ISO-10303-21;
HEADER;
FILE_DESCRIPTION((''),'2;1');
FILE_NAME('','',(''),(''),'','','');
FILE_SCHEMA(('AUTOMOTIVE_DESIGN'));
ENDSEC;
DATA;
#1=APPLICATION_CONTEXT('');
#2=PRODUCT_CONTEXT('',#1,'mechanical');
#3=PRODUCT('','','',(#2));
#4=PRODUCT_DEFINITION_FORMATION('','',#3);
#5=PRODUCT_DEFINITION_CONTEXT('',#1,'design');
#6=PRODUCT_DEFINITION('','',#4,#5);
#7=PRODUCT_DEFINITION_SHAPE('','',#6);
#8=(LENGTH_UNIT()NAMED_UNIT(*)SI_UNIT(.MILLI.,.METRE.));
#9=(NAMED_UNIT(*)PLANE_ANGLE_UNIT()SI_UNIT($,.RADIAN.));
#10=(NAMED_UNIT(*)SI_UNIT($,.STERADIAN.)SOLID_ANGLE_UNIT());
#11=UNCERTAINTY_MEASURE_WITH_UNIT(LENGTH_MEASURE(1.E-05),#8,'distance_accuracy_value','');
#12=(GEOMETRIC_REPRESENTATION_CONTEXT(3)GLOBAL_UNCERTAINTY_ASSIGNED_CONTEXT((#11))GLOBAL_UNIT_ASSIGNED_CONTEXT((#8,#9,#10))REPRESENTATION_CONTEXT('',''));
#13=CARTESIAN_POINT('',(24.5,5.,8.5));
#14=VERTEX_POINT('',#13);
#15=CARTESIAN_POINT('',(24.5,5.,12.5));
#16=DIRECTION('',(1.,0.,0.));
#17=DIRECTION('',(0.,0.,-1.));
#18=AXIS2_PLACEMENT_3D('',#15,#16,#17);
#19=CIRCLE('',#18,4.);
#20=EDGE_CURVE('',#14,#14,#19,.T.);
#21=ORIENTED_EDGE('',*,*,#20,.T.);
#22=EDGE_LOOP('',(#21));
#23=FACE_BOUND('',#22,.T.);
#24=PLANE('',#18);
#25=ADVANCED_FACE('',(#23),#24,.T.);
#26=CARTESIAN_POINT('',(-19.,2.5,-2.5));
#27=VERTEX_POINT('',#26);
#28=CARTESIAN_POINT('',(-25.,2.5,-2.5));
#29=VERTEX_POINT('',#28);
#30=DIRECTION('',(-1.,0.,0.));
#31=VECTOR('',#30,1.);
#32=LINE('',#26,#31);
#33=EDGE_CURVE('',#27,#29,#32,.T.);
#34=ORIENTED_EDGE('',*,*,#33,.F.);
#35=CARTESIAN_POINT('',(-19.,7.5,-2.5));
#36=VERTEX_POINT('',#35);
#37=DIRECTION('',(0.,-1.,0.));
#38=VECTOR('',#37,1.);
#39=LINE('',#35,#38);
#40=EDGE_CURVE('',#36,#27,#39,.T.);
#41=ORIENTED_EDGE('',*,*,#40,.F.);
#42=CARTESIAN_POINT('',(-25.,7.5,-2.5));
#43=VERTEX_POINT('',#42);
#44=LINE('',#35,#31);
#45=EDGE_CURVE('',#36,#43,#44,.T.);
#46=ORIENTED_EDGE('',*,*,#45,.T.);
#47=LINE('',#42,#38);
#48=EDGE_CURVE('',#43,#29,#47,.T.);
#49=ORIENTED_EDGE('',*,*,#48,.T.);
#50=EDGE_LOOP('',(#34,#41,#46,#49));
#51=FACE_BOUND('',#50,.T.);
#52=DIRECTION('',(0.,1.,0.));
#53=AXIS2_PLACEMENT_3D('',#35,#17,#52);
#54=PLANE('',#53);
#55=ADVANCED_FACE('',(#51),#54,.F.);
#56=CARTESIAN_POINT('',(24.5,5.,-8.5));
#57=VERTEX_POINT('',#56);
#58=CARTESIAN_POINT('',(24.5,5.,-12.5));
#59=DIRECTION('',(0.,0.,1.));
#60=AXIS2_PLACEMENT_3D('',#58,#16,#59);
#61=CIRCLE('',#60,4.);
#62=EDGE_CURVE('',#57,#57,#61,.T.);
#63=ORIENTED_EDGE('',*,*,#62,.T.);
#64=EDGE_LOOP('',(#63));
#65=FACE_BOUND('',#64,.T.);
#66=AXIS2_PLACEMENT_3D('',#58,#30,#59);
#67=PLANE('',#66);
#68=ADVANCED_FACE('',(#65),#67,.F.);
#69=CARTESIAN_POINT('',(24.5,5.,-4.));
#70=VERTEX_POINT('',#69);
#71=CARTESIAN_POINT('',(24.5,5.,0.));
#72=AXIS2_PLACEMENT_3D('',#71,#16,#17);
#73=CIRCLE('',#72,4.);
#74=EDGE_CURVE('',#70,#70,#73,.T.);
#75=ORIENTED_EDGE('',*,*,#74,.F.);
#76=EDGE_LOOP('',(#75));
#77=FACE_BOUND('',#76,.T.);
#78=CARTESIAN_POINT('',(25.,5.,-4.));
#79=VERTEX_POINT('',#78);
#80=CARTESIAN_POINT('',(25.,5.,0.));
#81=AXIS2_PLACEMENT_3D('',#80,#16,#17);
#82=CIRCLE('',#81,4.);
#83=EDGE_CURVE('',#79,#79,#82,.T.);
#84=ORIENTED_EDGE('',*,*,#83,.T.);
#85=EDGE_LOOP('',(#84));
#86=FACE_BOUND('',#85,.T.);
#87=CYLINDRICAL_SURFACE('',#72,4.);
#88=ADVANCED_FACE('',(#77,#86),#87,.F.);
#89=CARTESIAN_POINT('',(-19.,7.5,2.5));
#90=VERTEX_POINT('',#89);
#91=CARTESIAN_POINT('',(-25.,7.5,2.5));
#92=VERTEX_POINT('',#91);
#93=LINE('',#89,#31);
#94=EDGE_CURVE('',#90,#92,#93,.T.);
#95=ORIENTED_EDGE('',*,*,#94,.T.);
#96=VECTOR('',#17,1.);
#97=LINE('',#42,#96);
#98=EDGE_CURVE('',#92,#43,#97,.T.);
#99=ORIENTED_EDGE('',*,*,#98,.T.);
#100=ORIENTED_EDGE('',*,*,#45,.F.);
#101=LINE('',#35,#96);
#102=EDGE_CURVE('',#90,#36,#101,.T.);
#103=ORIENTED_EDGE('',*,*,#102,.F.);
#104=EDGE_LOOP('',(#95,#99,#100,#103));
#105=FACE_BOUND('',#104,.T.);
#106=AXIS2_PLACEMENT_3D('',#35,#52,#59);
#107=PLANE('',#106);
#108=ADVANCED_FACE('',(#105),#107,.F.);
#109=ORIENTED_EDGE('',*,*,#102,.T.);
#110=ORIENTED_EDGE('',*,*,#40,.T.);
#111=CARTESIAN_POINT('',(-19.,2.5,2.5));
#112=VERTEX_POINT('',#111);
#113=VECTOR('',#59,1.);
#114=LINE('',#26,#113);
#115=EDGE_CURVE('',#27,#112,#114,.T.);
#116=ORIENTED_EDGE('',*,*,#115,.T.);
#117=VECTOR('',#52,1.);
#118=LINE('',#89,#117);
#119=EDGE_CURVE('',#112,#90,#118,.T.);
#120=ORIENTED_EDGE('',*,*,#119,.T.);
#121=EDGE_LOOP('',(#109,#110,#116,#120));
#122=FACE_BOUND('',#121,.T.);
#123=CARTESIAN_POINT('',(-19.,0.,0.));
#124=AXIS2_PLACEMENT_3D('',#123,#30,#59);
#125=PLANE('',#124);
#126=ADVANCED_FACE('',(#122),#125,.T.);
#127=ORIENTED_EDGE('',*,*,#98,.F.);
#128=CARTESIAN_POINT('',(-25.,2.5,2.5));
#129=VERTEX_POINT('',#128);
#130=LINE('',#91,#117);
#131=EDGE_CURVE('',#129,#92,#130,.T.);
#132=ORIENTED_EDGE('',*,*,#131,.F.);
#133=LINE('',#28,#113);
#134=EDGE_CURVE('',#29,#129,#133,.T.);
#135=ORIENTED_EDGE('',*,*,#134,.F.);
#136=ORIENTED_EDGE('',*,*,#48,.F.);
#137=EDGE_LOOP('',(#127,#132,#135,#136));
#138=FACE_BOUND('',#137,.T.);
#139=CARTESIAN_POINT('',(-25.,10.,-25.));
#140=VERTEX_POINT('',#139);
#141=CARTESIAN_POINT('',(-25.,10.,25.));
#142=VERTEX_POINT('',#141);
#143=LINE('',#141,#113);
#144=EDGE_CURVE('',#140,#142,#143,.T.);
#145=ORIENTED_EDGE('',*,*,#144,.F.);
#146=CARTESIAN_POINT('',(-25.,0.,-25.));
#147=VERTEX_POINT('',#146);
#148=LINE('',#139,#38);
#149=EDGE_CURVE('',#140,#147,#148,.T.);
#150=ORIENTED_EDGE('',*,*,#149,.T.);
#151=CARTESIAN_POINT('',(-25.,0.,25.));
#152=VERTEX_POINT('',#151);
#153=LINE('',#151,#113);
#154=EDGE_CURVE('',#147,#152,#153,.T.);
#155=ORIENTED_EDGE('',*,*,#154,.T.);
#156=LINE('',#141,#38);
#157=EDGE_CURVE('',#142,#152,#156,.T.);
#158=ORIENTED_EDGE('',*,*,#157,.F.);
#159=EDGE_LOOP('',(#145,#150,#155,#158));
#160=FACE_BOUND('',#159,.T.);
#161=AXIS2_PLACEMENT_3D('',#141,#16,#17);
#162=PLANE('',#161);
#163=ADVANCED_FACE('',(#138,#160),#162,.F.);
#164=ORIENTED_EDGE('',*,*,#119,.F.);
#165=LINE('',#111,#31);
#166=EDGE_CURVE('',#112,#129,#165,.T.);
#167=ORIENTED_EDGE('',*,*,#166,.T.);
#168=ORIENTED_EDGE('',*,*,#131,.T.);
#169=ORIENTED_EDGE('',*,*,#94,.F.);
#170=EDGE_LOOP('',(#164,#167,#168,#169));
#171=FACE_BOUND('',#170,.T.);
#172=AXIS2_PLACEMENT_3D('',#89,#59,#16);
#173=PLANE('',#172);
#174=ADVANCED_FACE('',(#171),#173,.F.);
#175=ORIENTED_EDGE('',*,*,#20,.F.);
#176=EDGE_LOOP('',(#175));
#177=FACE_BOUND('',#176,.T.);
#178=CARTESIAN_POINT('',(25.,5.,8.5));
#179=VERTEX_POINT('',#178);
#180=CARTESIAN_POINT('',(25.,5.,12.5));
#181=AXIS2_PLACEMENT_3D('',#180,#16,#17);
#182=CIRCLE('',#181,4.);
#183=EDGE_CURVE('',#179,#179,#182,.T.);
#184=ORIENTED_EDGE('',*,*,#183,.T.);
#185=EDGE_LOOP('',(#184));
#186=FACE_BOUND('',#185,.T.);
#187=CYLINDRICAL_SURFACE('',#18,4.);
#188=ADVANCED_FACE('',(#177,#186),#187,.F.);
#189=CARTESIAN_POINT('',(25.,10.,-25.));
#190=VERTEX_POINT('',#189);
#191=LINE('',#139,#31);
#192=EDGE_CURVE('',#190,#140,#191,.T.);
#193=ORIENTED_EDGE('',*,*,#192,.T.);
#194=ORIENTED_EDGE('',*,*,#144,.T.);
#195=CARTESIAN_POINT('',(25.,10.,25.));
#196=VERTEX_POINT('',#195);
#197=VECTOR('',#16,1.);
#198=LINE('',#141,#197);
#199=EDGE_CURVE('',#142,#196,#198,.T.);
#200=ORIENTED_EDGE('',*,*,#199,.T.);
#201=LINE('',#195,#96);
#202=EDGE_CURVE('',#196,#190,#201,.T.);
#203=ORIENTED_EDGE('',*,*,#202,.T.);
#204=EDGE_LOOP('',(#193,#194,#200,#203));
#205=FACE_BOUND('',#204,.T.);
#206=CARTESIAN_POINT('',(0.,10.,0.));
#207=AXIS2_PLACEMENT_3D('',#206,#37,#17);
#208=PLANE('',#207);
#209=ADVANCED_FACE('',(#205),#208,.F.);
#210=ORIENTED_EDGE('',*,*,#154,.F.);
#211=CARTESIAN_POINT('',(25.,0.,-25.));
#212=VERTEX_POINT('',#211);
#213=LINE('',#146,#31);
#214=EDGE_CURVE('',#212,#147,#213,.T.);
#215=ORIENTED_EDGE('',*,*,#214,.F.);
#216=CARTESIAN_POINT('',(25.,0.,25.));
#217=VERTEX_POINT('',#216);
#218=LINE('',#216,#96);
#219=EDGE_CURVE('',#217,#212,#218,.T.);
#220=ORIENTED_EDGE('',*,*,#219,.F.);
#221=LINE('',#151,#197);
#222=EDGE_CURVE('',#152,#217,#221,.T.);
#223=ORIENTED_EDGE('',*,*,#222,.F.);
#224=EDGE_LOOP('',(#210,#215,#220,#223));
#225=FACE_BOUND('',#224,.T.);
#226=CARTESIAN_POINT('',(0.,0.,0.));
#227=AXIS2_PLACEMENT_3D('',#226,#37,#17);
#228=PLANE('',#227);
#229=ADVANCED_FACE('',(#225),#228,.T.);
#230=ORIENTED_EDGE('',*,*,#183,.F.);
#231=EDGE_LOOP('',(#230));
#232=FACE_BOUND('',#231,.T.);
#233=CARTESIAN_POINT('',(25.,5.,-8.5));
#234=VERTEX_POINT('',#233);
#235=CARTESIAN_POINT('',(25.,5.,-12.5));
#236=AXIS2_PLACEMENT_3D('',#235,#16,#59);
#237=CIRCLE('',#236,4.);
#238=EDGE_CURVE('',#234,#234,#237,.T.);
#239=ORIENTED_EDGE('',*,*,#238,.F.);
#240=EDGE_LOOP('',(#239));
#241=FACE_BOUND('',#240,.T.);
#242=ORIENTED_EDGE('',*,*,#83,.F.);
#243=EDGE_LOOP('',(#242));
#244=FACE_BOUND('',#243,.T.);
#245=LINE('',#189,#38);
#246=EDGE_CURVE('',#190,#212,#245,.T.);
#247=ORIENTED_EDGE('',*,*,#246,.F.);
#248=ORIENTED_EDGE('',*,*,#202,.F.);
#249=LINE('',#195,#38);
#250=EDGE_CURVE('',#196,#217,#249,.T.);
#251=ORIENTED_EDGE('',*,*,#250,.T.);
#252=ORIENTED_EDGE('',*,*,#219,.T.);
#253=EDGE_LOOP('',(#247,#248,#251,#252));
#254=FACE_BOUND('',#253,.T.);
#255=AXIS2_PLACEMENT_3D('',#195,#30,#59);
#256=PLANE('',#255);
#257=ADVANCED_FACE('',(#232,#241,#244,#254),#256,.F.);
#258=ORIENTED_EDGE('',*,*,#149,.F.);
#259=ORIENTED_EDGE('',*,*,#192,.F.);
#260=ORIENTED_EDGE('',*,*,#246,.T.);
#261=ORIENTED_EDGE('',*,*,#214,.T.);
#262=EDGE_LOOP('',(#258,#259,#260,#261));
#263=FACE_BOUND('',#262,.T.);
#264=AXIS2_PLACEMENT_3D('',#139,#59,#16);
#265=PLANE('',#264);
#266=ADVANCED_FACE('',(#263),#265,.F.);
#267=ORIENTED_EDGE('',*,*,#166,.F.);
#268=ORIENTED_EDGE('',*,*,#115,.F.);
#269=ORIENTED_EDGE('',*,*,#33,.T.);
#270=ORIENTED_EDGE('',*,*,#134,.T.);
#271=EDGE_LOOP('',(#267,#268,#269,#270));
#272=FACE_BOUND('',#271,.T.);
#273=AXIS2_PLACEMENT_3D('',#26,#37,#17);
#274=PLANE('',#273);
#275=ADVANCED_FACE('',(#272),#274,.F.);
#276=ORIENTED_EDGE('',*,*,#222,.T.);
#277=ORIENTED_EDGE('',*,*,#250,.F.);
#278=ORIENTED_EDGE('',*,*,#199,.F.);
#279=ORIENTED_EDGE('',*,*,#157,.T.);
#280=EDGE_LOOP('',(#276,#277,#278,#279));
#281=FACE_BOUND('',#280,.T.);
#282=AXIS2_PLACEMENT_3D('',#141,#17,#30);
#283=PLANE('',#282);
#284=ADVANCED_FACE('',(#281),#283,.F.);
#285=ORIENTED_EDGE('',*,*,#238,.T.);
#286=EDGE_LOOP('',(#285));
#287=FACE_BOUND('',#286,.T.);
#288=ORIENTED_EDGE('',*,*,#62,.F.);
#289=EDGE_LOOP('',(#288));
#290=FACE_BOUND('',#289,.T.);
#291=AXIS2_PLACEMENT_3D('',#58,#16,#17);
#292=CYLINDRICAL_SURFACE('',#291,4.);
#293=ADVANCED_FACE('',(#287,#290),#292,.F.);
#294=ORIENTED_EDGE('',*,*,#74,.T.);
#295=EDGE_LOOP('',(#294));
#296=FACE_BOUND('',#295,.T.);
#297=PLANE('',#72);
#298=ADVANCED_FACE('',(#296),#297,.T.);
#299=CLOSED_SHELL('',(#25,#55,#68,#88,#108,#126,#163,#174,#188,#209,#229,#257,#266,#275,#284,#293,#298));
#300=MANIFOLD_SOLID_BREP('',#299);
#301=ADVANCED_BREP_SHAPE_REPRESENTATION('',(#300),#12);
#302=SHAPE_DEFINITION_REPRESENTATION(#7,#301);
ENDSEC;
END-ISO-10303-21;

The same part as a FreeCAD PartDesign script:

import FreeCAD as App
import Part
import Sketcher
Q = App.Units.Quantity


def add_polygon(sketch, points):
    """Adds a closed chain of lines whose ends are joined by coincident constraints."""
    first, n = sketch.GeometryCount, len(points)
    for a, b in zip(points, points[1:] + points[:1]):
        sketch.addGeometry(Part.LineSegment(App.Vector(*a, 0), App.Vector(*b, 0)), False)
    for i in range(n):
        sketch.addConstraint(Sketcher.Constraint("Coincident", first + i, 2, first + (i + 1) % n, 1))

doc = App.newDocument("Part")
body = doc.addObject("PartDesign::Body", "Body")

sketch1 = body.newObject("Sketcher::SketchObject", "Sketch")
sketch1.AttachmentSupport = (doc.getObject("XZ_Plane"), [""])
sketch1.MapMode = "FlatFace"
add_polygon(sketch1, [(-25, -25), (-25, 25), (25, 25), (25, -25)])
sketch1.addConstraint([
    Sketcher.Constraint("Vertical", 0),
    Sketcher.Constraint("Horizontal", 1),
    Sketcher.Constraint("Vertical", 2),
    Sketcher.Constraint("Horizontal", 3),
    Sketcher.Constraint("Symmetric", 0, 2, 2, 2, -1, 1),
    Sketcher.Constraint("Equal", 3, 0),
    Sketcher.Constraint("DistanceX", 1, 1, 1, 2, Q("50 mm")),
])
pad1 = body.newObject("PartDesign::Pad", "Pad")
pad1.Profile = sketch1
pad1.Length = 10
pad1.Reversed = True

sketch2 = body.newObject("Sketcher::SketchObject", "Sketch001")
sketch2.AttachmentSupport = (doc.getObject("YZ_Plane"), [""])
sketch2.MapMode = "FlatFace"
sketch2.AttachmentOffset = App.Placement(App.Vector(0, 0, -25), App.Rotation())
add_polygon(sketch2, [(7.5, -2.5), (2.5, -2.5), (2.5, 2.5), (7.5, 2.5)])
sketch2.addConstraint([
    Sketcher.Constraint("Horizontal", 0),
    Sketcher.Constraint("Vertical", 1),
    Sketcher.Constraint("Horizontal", 2),
    Sketcher.Constraint("Vertical", 3),
    Sketcher.Constraint("Equal", 2, 1),
    Sketcher.Constraint("DistanceX", 0, 2, 0, 1, Q("5 mm")),
    Sketcher.Constraint("DistanceX", -1, 1, 0, 2, Q("2.5 mm")),
    Sketcher.Constraint("DistanceY", 0, 2, -1, 1, Q("2.5 mm")),
])
pocket1 = body.newObject("PartDesign::Pocket", "Pocket")
pocket1.Profile = sketch2
pocket1.Length = 6
pocket1.Reversed = True

sketch3 = body.newObject("Sketcher::SketchObject", "Sketch002")
sketch3.AttachmentSupport = (doc.getObject("YZ_Plane"), [""])
sketch3.MapMode = "FlatFace"
sketch3.AttachmentOffset = App.Placement(App.Vector(0, 0, 25), App.Rotation())
sketch3.addGeometry([
    Part.Circle(App.Vector(5, 12.5, 0), App.Vector(0, 0, 1), 4),
    Part.Circle(App.Vector(5, -12.5, 0), App.Vector(0, 0, 1), 4),
    Part.Circle(App.Vector(5, 0, 0), App.Vector(0, 0, 1), 4),
], False)
sketch3.addConstraint([
    Sketcher.Constraint("Equal", 0, 1),
    Sketcher.Constraint("Equal", 1, 2),
    Sketcher.Constraint("Symmetric", 0, 3, 1, 3, -1),
    Sketcher.Constraint("PointOnObject", 2, 3, -1),
    Sketcher.Constraint("Vertical", 1, 3, 2, 3),
    Sketcher.Constraint("Diameter", 0, Q("8 mm")),
    Sketcher.Constraint("DistanceX", -1, 1, 0, 3, Q("5 mm")),
    Sketcher.Constraint("DistanceY", 1, 3, 0, 3, Q("25 mm")),
])
pocket2 = body.newObject("PartDesign::Pocket", "Pocket001")
pocket2.Profile = sketch3
pocket2.Length = 0.5

doc.recompute()
